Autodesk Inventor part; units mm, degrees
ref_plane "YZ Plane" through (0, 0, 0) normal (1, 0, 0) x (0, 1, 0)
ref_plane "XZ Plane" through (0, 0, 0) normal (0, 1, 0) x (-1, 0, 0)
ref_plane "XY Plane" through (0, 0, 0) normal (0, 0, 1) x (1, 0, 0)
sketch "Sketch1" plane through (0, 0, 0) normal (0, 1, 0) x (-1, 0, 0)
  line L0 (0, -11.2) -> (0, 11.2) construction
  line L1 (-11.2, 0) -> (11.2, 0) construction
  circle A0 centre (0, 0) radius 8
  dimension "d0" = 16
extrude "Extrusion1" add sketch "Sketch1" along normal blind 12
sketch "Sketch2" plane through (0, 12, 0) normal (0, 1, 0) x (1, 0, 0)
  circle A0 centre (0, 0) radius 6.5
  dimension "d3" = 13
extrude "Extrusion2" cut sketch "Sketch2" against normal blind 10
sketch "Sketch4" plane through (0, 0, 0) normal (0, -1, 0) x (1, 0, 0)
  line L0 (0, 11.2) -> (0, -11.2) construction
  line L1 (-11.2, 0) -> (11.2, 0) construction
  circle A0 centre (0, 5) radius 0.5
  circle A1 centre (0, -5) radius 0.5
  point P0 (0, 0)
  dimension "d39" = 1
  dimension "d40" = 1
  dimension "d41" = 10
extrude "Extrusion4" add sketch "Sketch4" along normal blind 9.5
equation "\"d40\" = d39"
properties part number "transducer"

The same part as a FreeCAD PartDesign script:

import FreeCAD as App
import Part
import Sketcher
Q = App.Units.Quantity

doc = App.newDocument("Part")
params = doc.addObject("Spreadsheet::Sheet", "Params")
for row, (alias, value) in enumerate([
    ("sketch1_diameter", "16 mm"),
    ("pad1_length", "12 mm"),
    ("sketch2_diameter", "13 mm"),
    ("pocket1_length", "10 mm"),
    ("sketch3_diameter", "1 mm"),
    ("pad2_length", "9.5 mm"),
], start=1):
    params.set(f"A{row}", alias)
    params.set(f"B{row}", "=" + value)
    params.setAlias(f"B{row}", alias)

body = doc.addObject("PartDesign::Body", "Body")

# Sketch on XZ plane
sketch1 = body.newObject("Sketcher::SketchObject", "Sketch")
sketch1.AttachmentSupport = (doc.getObject("XZ_Plane"), [""])
sketch1.MapMode = "FlatFace"
sketch1.addGeometry(Part.Circle(App.Vector(0, 0, 0), App.Vector(0, 0, 1), 8), False)
sketch1.addConstraint(Sketcher.Constraint("Coincident", 0, 3, -1, 1))
sketch1.addConstraint(Sketcher.Constraint("Diameter", 0, Q("16 mm")))
sketch1.setExpression("Constraints[1]", "Params.sketch1_diameter")
pad1 = body.newObject("PartDesign::Pad", "Pad")
pad1.Profile = sketch1
pad1.setExpression("Length", "Params.pad1_length")
pad1.Reversed = True

# Sketch on XZ plane
sketch2 = body.newObject("Sketcher::SketchObject", "Sketch001")
sketch2.AttachmentSupport = (doc.getObject("XZ_Plane"), [""])
sketch2.MapMode = "FlatFace"
sketch2.AttachmentOffset = App.Placement(App.Vector(0, 0, -12), App.Rotation())
sketch2.addGeometry(Part.Circle(App.Vector(0, 0, 0), App.Vector(0, 0, 1), 6), False)
sketch2.addConstraint(Sketcher.Constraint("Coincident", 0, 3, -1, 1))
sketch2.addConstraint(Sketcher.Constraint("Diameter", 0, Q("13 mm")))
sketch2.setExpression("Constraints[1]", "Params.sketch2_diameter")
pocket1 = body.newObject("PartDesign::Pocket", "Pocket")
pocket1.Profile = sketch2
pocket1.setExpression("Length", "Params.pocket1_length")
pocket1.Reversed = True

# Sketch on XZ plane
sketch3 = body.newObject("Sketcher::SketchObject", "Sketch002")
sketch3.AttachmentSupport = (doc.getObject("XZ_Plane"), [""])
sketch3.MapMode = "FlatFace"
sketch3.addGeometry(Part.Circle(App.Vector(0, 5, 0), App.Vector(0, 0, 1), 0.5), False)
sketch3.addGeometry(Part.Circle(App.Vector(0, -5, 0), App.Vector(0, 0, 1), 0.5), False)
sketch3.addConstraint(Sketcher.Constraint("Equal", 0, 1))
sketch3.addConstraint(Sketcher.Constraint("Symmetric", 0, 3, 1, 3, -1, 1))
sketch3.addConstraint(Sketcher.Constraint("PointOnObject", 0, 3, -2))
sketch3.addConstraint(Sketcher.Constraint("Diameter", 0, Q("1 mm")))
sketch3.addConstraint(Sketcher.Constraint("DistanceY", 1, 3, 0, 3, Q("10 mm")))
sketch3.setExpression("Constraints[3]", "Params.sketch3_diameter")
pad2 = body.newObject("PartDesign::Pad", "Pad001")
pad2.Profile = sketch3
pad2.setExpression("Length", "Params.pad2_length")

doc.recompute()
